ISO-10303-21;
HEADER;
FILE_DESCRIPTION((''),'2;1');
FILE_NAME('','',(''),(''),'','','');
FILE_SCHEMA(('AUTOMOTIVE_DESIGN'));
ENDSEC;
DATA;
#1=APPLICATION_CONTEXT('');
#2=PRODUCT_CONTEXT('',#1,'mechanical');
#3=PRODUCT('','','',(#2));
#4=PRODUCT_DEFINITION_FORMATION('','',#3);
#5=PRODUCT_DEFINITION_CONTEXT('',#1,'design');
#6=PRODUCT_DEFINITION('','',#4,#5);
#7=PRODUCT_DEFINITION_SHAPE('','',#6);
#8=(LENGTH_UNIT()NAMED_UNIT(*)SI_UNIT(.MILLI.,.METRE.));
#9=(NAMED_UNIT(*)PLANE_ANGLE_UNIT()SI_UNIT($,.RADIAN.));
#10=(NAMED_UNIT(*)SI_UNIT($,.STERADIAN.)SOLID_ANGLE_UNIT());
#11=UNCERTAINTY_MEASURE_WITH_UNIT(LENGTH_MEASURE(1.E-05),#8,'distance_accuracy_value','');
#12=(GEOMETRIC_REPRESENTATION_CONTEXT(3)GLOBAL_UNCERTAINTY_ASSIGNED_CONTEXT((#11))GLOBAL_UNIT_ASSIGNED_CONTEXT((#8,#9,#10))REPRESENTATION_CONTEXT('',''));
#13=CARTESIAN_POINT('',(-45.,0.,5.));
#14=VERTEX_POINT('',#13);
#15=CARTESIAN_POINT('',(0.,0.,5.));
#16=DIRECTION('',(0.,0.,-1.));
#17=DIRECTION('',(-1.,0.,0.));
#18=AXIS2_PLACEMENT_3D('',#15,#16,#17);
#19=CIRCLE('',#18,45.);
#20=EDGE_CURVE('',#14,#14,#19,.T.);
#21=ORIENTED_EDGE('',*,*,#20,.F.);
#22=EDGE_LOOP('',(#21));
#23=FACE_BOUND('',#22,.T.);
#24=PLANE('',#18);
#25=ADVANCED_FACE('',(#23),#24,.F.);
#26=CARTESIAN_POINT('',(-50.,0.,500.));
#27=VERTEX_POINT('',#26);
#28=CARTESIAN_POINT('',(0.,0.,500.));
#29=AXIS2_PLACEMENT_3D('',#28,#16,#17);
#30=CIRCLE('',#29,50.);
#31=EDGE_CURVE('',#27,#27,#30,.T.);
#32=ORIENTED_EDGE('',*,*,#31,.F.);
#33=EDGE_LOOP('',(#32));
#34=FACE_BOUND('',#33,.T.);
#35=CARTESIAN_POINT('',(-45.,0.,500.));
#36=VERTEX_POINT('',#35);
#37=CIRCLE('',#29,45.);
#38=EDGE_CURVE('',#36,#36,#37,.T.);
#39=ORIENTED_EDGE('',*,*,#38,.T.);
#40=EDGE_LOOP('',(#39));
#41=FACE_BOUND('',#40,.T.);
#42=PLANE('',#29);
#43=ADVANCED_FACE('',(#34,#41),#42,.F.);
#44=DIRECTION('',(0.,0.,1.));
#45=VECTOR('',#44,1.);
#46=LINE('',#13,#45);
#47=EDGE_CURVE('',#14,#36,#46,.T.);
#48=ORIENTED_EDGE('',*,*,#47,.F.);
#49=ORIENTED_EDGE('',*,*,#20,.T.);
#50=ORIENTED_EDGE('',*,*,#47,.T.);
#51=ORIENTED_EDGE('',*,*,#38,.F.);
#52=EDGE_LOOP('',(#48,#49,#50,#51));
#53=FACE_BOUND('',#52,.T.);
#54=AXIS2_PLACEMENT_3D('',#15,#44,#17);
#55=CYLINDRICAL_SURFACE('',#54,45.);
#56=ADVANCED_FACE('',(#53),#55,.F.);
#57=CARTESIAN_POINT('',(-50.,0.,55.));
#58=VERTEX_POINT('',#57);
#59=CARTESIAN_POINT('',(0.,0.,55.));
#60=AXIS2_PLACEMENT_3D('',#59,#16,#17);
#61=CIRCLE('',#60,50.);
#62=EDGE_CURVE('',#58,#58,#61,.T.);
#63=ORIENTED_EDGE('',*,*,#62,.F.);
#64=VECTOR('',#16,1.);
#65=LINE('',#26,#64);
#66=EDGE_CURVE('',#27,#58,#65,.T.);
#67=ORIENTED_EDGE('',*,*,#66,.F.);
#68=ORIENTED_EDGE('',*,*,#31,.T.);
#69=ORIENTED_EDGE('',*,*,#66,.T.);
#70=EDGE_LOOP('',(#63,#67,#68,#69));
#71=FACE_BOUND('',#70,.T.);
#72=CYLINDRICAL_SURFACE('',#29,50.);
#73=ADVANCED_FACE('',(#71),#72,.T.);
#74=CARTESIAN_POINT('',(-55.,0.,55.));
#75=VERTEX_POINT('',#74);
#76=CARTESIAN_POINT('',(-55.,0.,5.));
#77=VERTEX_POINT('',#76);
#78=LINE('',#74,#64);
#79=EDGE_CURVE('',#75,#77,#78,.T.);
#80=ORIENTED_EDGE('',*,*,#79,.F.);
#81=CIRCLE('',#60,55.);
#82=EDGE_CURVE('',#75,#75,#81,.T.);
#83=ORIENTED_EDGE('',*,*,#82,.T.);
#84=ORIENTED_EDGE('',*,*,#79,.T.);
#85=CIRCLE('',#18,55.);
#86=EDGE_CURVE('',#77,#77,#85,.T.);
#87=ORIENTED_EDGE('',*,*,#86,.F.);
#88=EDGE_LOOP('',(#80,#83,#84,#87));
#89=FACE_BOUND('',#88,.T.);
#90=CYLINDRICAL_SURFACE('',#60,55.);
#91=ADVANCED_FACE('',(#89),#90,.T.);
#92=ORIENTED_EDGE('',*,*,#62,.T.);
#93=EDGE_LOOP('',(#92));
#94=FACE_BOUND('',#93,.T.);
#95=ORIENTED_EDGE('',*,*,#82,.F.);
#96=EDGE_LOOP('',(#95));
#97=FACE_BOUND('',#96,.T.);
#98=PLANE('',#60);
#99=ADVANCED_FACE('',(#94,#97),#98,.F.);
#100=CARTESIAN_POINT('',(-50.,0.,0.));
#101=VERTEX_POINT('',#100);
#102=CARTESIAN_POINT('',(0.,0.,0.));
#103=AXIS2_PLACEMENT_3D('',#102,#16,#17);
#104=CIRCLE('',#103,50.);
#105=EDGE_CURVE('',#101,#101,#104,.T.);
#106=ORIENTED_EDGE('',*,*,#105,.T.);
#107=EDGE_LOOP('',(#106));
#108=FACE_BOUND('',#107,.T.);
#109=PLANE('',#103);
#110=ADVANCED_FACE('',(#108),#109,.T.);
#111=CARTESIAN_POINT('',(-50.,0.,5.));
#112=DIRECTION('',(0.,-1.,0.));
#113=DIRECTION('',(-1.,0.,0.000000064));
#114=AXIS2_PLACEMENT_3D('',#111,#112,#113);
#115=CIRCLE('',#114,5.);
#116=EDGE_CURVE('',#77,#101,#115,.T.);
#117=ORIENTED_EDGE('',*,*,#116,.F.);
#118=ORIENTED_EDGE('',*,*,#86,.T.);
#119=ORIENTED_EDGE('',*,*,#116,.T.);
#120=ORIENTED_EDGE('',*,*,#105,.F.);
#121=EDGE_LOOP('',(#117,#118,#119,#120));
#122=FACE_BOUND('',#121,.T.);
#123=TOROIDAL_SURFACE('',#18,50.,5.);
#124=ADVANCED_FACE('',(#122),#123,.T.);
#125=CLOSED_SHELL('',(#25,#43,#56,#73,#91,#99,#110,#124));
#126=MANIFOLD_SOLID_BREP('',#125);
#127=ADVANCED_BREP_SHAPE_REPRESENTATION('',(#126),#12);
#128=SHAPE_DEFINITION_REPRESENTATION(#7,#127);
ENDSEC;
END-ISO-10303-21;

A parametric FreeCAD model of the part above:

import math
import FreeCAD as App
import Part
import Sketcher
from FreeCAD import Vector
Q = App.Units.Quantity

doc = App.newDocument("Part")
body = doc.addObject("PartDesign::Body", "Body")

# Sketch on XZ plane
sketch1 = body.newObject("Sketcher::SketchObject", "Sketch")
sketch1.AttachmentSupport = (doc.getObject("XZ_Plane"), [""])
sketch1.MapMode = "FlatFace"
sketch1.addGeometry([
    Part.ArcOfCircle(Part.Circle(Vector(-50, 5, 0), Vector(0, 0, 1), 5), math.radians(180), math.radians(270)),  # 0
    Part.LineSegment(Vector(-50, 0, 0), Vector(0, 0, 0)),  # 1
    Part.LineSegment(Vector(0, 0, 0), Vector(0, 5, 0)),  # 2
    Part.LineSegment(Vector(0, 5, 0), Vector(-45, 5, 0)),  # 3
    Part.LineSegment(Vector(-45, 5, 0), Vector(-45, 500, 0)),  # 4
    Part.LineSegment(Vector(-45, 500, 0), Vector(-50, 500, 0)),  # 5
    Part.LineSegment(Vector(-50, 500, 0), Vector(-50, 55, 0)),  # 6
    Part.LineSegment(Vector(-50, 55, 0), Vector(-55, 55, 0)),  # 7
    Part.LineSegment(Vector(-55, 55, 0), Vector(-55, 5, 0)),  # 8
], False)
sketch1.addConstraint([
    Sketcher.Constraint("Tangent", 0, 2, 1, 1),
    Sketcher.Constraint("Coincident", 1, 2, 2, 1),
    Sketcher.Constraint("Coincident", 2, 2, 3, 1),
    Sketcher.Constraint("Coincident", 3, 2, 4, 1),
    Sketcher.Constraint("Coincident", 4, 2, 5, 1),
    Sketcher.Constraint("Coincident", 5, 2, 6, 1),
    Sketcher.Constraint("Coincident", 6, 2, 7, 1),
    Sketcher.Constraint("Coincident", 7, 2, 8, 1),
    Sketcher.Constraint("Tangent", 8, 2, 0, 1),
    Sketcher.Constraint("Horizontal", 1),
    Sketcher.Constraint("Vertical", 2),
    Sketcher.Constraint("Horizontal", 3),
    Sketcher.Constraint("Vertical", 4),
    Sketcher.Constraint("Horizontal", 5),
    Sketcher.Constraint("Vertical", 6),
    Sketcher.Constraint("Horizontal", 7),
    Sketcher.Constraint("Vertical", 8),
    Sketcher.Constraint("Coincident", 1, 2, -1, 1),
    Sketcher.Constraint("Horizontal", 0, 3, 2, 2),
    Sketcher.Constraint("Vertical", 0, 2, 5, 2),
    Sketcher.Constraint("Equal", 5, 7),
    Sketcher.Constraint("Equal", 1, 8),
    Sketcher.Constraint("Radius", 0, Q("5 mm")),
    Sketcher.Constraint("DistanceX", 1, 1, 1, 2, Q("50 mm")),
    Sketcher.Constraint("DistanceY", 4, 1, 4, 2, Q("495 mm")),
])
revolution = body.newObject("PartDesign::Revolution", "Revolution")
revolution.Profile = sketch1
revolution.ReferenceAxis = (sketch1, ["V_Axis"])
revolution.Angle = 360

doc.recompute()
